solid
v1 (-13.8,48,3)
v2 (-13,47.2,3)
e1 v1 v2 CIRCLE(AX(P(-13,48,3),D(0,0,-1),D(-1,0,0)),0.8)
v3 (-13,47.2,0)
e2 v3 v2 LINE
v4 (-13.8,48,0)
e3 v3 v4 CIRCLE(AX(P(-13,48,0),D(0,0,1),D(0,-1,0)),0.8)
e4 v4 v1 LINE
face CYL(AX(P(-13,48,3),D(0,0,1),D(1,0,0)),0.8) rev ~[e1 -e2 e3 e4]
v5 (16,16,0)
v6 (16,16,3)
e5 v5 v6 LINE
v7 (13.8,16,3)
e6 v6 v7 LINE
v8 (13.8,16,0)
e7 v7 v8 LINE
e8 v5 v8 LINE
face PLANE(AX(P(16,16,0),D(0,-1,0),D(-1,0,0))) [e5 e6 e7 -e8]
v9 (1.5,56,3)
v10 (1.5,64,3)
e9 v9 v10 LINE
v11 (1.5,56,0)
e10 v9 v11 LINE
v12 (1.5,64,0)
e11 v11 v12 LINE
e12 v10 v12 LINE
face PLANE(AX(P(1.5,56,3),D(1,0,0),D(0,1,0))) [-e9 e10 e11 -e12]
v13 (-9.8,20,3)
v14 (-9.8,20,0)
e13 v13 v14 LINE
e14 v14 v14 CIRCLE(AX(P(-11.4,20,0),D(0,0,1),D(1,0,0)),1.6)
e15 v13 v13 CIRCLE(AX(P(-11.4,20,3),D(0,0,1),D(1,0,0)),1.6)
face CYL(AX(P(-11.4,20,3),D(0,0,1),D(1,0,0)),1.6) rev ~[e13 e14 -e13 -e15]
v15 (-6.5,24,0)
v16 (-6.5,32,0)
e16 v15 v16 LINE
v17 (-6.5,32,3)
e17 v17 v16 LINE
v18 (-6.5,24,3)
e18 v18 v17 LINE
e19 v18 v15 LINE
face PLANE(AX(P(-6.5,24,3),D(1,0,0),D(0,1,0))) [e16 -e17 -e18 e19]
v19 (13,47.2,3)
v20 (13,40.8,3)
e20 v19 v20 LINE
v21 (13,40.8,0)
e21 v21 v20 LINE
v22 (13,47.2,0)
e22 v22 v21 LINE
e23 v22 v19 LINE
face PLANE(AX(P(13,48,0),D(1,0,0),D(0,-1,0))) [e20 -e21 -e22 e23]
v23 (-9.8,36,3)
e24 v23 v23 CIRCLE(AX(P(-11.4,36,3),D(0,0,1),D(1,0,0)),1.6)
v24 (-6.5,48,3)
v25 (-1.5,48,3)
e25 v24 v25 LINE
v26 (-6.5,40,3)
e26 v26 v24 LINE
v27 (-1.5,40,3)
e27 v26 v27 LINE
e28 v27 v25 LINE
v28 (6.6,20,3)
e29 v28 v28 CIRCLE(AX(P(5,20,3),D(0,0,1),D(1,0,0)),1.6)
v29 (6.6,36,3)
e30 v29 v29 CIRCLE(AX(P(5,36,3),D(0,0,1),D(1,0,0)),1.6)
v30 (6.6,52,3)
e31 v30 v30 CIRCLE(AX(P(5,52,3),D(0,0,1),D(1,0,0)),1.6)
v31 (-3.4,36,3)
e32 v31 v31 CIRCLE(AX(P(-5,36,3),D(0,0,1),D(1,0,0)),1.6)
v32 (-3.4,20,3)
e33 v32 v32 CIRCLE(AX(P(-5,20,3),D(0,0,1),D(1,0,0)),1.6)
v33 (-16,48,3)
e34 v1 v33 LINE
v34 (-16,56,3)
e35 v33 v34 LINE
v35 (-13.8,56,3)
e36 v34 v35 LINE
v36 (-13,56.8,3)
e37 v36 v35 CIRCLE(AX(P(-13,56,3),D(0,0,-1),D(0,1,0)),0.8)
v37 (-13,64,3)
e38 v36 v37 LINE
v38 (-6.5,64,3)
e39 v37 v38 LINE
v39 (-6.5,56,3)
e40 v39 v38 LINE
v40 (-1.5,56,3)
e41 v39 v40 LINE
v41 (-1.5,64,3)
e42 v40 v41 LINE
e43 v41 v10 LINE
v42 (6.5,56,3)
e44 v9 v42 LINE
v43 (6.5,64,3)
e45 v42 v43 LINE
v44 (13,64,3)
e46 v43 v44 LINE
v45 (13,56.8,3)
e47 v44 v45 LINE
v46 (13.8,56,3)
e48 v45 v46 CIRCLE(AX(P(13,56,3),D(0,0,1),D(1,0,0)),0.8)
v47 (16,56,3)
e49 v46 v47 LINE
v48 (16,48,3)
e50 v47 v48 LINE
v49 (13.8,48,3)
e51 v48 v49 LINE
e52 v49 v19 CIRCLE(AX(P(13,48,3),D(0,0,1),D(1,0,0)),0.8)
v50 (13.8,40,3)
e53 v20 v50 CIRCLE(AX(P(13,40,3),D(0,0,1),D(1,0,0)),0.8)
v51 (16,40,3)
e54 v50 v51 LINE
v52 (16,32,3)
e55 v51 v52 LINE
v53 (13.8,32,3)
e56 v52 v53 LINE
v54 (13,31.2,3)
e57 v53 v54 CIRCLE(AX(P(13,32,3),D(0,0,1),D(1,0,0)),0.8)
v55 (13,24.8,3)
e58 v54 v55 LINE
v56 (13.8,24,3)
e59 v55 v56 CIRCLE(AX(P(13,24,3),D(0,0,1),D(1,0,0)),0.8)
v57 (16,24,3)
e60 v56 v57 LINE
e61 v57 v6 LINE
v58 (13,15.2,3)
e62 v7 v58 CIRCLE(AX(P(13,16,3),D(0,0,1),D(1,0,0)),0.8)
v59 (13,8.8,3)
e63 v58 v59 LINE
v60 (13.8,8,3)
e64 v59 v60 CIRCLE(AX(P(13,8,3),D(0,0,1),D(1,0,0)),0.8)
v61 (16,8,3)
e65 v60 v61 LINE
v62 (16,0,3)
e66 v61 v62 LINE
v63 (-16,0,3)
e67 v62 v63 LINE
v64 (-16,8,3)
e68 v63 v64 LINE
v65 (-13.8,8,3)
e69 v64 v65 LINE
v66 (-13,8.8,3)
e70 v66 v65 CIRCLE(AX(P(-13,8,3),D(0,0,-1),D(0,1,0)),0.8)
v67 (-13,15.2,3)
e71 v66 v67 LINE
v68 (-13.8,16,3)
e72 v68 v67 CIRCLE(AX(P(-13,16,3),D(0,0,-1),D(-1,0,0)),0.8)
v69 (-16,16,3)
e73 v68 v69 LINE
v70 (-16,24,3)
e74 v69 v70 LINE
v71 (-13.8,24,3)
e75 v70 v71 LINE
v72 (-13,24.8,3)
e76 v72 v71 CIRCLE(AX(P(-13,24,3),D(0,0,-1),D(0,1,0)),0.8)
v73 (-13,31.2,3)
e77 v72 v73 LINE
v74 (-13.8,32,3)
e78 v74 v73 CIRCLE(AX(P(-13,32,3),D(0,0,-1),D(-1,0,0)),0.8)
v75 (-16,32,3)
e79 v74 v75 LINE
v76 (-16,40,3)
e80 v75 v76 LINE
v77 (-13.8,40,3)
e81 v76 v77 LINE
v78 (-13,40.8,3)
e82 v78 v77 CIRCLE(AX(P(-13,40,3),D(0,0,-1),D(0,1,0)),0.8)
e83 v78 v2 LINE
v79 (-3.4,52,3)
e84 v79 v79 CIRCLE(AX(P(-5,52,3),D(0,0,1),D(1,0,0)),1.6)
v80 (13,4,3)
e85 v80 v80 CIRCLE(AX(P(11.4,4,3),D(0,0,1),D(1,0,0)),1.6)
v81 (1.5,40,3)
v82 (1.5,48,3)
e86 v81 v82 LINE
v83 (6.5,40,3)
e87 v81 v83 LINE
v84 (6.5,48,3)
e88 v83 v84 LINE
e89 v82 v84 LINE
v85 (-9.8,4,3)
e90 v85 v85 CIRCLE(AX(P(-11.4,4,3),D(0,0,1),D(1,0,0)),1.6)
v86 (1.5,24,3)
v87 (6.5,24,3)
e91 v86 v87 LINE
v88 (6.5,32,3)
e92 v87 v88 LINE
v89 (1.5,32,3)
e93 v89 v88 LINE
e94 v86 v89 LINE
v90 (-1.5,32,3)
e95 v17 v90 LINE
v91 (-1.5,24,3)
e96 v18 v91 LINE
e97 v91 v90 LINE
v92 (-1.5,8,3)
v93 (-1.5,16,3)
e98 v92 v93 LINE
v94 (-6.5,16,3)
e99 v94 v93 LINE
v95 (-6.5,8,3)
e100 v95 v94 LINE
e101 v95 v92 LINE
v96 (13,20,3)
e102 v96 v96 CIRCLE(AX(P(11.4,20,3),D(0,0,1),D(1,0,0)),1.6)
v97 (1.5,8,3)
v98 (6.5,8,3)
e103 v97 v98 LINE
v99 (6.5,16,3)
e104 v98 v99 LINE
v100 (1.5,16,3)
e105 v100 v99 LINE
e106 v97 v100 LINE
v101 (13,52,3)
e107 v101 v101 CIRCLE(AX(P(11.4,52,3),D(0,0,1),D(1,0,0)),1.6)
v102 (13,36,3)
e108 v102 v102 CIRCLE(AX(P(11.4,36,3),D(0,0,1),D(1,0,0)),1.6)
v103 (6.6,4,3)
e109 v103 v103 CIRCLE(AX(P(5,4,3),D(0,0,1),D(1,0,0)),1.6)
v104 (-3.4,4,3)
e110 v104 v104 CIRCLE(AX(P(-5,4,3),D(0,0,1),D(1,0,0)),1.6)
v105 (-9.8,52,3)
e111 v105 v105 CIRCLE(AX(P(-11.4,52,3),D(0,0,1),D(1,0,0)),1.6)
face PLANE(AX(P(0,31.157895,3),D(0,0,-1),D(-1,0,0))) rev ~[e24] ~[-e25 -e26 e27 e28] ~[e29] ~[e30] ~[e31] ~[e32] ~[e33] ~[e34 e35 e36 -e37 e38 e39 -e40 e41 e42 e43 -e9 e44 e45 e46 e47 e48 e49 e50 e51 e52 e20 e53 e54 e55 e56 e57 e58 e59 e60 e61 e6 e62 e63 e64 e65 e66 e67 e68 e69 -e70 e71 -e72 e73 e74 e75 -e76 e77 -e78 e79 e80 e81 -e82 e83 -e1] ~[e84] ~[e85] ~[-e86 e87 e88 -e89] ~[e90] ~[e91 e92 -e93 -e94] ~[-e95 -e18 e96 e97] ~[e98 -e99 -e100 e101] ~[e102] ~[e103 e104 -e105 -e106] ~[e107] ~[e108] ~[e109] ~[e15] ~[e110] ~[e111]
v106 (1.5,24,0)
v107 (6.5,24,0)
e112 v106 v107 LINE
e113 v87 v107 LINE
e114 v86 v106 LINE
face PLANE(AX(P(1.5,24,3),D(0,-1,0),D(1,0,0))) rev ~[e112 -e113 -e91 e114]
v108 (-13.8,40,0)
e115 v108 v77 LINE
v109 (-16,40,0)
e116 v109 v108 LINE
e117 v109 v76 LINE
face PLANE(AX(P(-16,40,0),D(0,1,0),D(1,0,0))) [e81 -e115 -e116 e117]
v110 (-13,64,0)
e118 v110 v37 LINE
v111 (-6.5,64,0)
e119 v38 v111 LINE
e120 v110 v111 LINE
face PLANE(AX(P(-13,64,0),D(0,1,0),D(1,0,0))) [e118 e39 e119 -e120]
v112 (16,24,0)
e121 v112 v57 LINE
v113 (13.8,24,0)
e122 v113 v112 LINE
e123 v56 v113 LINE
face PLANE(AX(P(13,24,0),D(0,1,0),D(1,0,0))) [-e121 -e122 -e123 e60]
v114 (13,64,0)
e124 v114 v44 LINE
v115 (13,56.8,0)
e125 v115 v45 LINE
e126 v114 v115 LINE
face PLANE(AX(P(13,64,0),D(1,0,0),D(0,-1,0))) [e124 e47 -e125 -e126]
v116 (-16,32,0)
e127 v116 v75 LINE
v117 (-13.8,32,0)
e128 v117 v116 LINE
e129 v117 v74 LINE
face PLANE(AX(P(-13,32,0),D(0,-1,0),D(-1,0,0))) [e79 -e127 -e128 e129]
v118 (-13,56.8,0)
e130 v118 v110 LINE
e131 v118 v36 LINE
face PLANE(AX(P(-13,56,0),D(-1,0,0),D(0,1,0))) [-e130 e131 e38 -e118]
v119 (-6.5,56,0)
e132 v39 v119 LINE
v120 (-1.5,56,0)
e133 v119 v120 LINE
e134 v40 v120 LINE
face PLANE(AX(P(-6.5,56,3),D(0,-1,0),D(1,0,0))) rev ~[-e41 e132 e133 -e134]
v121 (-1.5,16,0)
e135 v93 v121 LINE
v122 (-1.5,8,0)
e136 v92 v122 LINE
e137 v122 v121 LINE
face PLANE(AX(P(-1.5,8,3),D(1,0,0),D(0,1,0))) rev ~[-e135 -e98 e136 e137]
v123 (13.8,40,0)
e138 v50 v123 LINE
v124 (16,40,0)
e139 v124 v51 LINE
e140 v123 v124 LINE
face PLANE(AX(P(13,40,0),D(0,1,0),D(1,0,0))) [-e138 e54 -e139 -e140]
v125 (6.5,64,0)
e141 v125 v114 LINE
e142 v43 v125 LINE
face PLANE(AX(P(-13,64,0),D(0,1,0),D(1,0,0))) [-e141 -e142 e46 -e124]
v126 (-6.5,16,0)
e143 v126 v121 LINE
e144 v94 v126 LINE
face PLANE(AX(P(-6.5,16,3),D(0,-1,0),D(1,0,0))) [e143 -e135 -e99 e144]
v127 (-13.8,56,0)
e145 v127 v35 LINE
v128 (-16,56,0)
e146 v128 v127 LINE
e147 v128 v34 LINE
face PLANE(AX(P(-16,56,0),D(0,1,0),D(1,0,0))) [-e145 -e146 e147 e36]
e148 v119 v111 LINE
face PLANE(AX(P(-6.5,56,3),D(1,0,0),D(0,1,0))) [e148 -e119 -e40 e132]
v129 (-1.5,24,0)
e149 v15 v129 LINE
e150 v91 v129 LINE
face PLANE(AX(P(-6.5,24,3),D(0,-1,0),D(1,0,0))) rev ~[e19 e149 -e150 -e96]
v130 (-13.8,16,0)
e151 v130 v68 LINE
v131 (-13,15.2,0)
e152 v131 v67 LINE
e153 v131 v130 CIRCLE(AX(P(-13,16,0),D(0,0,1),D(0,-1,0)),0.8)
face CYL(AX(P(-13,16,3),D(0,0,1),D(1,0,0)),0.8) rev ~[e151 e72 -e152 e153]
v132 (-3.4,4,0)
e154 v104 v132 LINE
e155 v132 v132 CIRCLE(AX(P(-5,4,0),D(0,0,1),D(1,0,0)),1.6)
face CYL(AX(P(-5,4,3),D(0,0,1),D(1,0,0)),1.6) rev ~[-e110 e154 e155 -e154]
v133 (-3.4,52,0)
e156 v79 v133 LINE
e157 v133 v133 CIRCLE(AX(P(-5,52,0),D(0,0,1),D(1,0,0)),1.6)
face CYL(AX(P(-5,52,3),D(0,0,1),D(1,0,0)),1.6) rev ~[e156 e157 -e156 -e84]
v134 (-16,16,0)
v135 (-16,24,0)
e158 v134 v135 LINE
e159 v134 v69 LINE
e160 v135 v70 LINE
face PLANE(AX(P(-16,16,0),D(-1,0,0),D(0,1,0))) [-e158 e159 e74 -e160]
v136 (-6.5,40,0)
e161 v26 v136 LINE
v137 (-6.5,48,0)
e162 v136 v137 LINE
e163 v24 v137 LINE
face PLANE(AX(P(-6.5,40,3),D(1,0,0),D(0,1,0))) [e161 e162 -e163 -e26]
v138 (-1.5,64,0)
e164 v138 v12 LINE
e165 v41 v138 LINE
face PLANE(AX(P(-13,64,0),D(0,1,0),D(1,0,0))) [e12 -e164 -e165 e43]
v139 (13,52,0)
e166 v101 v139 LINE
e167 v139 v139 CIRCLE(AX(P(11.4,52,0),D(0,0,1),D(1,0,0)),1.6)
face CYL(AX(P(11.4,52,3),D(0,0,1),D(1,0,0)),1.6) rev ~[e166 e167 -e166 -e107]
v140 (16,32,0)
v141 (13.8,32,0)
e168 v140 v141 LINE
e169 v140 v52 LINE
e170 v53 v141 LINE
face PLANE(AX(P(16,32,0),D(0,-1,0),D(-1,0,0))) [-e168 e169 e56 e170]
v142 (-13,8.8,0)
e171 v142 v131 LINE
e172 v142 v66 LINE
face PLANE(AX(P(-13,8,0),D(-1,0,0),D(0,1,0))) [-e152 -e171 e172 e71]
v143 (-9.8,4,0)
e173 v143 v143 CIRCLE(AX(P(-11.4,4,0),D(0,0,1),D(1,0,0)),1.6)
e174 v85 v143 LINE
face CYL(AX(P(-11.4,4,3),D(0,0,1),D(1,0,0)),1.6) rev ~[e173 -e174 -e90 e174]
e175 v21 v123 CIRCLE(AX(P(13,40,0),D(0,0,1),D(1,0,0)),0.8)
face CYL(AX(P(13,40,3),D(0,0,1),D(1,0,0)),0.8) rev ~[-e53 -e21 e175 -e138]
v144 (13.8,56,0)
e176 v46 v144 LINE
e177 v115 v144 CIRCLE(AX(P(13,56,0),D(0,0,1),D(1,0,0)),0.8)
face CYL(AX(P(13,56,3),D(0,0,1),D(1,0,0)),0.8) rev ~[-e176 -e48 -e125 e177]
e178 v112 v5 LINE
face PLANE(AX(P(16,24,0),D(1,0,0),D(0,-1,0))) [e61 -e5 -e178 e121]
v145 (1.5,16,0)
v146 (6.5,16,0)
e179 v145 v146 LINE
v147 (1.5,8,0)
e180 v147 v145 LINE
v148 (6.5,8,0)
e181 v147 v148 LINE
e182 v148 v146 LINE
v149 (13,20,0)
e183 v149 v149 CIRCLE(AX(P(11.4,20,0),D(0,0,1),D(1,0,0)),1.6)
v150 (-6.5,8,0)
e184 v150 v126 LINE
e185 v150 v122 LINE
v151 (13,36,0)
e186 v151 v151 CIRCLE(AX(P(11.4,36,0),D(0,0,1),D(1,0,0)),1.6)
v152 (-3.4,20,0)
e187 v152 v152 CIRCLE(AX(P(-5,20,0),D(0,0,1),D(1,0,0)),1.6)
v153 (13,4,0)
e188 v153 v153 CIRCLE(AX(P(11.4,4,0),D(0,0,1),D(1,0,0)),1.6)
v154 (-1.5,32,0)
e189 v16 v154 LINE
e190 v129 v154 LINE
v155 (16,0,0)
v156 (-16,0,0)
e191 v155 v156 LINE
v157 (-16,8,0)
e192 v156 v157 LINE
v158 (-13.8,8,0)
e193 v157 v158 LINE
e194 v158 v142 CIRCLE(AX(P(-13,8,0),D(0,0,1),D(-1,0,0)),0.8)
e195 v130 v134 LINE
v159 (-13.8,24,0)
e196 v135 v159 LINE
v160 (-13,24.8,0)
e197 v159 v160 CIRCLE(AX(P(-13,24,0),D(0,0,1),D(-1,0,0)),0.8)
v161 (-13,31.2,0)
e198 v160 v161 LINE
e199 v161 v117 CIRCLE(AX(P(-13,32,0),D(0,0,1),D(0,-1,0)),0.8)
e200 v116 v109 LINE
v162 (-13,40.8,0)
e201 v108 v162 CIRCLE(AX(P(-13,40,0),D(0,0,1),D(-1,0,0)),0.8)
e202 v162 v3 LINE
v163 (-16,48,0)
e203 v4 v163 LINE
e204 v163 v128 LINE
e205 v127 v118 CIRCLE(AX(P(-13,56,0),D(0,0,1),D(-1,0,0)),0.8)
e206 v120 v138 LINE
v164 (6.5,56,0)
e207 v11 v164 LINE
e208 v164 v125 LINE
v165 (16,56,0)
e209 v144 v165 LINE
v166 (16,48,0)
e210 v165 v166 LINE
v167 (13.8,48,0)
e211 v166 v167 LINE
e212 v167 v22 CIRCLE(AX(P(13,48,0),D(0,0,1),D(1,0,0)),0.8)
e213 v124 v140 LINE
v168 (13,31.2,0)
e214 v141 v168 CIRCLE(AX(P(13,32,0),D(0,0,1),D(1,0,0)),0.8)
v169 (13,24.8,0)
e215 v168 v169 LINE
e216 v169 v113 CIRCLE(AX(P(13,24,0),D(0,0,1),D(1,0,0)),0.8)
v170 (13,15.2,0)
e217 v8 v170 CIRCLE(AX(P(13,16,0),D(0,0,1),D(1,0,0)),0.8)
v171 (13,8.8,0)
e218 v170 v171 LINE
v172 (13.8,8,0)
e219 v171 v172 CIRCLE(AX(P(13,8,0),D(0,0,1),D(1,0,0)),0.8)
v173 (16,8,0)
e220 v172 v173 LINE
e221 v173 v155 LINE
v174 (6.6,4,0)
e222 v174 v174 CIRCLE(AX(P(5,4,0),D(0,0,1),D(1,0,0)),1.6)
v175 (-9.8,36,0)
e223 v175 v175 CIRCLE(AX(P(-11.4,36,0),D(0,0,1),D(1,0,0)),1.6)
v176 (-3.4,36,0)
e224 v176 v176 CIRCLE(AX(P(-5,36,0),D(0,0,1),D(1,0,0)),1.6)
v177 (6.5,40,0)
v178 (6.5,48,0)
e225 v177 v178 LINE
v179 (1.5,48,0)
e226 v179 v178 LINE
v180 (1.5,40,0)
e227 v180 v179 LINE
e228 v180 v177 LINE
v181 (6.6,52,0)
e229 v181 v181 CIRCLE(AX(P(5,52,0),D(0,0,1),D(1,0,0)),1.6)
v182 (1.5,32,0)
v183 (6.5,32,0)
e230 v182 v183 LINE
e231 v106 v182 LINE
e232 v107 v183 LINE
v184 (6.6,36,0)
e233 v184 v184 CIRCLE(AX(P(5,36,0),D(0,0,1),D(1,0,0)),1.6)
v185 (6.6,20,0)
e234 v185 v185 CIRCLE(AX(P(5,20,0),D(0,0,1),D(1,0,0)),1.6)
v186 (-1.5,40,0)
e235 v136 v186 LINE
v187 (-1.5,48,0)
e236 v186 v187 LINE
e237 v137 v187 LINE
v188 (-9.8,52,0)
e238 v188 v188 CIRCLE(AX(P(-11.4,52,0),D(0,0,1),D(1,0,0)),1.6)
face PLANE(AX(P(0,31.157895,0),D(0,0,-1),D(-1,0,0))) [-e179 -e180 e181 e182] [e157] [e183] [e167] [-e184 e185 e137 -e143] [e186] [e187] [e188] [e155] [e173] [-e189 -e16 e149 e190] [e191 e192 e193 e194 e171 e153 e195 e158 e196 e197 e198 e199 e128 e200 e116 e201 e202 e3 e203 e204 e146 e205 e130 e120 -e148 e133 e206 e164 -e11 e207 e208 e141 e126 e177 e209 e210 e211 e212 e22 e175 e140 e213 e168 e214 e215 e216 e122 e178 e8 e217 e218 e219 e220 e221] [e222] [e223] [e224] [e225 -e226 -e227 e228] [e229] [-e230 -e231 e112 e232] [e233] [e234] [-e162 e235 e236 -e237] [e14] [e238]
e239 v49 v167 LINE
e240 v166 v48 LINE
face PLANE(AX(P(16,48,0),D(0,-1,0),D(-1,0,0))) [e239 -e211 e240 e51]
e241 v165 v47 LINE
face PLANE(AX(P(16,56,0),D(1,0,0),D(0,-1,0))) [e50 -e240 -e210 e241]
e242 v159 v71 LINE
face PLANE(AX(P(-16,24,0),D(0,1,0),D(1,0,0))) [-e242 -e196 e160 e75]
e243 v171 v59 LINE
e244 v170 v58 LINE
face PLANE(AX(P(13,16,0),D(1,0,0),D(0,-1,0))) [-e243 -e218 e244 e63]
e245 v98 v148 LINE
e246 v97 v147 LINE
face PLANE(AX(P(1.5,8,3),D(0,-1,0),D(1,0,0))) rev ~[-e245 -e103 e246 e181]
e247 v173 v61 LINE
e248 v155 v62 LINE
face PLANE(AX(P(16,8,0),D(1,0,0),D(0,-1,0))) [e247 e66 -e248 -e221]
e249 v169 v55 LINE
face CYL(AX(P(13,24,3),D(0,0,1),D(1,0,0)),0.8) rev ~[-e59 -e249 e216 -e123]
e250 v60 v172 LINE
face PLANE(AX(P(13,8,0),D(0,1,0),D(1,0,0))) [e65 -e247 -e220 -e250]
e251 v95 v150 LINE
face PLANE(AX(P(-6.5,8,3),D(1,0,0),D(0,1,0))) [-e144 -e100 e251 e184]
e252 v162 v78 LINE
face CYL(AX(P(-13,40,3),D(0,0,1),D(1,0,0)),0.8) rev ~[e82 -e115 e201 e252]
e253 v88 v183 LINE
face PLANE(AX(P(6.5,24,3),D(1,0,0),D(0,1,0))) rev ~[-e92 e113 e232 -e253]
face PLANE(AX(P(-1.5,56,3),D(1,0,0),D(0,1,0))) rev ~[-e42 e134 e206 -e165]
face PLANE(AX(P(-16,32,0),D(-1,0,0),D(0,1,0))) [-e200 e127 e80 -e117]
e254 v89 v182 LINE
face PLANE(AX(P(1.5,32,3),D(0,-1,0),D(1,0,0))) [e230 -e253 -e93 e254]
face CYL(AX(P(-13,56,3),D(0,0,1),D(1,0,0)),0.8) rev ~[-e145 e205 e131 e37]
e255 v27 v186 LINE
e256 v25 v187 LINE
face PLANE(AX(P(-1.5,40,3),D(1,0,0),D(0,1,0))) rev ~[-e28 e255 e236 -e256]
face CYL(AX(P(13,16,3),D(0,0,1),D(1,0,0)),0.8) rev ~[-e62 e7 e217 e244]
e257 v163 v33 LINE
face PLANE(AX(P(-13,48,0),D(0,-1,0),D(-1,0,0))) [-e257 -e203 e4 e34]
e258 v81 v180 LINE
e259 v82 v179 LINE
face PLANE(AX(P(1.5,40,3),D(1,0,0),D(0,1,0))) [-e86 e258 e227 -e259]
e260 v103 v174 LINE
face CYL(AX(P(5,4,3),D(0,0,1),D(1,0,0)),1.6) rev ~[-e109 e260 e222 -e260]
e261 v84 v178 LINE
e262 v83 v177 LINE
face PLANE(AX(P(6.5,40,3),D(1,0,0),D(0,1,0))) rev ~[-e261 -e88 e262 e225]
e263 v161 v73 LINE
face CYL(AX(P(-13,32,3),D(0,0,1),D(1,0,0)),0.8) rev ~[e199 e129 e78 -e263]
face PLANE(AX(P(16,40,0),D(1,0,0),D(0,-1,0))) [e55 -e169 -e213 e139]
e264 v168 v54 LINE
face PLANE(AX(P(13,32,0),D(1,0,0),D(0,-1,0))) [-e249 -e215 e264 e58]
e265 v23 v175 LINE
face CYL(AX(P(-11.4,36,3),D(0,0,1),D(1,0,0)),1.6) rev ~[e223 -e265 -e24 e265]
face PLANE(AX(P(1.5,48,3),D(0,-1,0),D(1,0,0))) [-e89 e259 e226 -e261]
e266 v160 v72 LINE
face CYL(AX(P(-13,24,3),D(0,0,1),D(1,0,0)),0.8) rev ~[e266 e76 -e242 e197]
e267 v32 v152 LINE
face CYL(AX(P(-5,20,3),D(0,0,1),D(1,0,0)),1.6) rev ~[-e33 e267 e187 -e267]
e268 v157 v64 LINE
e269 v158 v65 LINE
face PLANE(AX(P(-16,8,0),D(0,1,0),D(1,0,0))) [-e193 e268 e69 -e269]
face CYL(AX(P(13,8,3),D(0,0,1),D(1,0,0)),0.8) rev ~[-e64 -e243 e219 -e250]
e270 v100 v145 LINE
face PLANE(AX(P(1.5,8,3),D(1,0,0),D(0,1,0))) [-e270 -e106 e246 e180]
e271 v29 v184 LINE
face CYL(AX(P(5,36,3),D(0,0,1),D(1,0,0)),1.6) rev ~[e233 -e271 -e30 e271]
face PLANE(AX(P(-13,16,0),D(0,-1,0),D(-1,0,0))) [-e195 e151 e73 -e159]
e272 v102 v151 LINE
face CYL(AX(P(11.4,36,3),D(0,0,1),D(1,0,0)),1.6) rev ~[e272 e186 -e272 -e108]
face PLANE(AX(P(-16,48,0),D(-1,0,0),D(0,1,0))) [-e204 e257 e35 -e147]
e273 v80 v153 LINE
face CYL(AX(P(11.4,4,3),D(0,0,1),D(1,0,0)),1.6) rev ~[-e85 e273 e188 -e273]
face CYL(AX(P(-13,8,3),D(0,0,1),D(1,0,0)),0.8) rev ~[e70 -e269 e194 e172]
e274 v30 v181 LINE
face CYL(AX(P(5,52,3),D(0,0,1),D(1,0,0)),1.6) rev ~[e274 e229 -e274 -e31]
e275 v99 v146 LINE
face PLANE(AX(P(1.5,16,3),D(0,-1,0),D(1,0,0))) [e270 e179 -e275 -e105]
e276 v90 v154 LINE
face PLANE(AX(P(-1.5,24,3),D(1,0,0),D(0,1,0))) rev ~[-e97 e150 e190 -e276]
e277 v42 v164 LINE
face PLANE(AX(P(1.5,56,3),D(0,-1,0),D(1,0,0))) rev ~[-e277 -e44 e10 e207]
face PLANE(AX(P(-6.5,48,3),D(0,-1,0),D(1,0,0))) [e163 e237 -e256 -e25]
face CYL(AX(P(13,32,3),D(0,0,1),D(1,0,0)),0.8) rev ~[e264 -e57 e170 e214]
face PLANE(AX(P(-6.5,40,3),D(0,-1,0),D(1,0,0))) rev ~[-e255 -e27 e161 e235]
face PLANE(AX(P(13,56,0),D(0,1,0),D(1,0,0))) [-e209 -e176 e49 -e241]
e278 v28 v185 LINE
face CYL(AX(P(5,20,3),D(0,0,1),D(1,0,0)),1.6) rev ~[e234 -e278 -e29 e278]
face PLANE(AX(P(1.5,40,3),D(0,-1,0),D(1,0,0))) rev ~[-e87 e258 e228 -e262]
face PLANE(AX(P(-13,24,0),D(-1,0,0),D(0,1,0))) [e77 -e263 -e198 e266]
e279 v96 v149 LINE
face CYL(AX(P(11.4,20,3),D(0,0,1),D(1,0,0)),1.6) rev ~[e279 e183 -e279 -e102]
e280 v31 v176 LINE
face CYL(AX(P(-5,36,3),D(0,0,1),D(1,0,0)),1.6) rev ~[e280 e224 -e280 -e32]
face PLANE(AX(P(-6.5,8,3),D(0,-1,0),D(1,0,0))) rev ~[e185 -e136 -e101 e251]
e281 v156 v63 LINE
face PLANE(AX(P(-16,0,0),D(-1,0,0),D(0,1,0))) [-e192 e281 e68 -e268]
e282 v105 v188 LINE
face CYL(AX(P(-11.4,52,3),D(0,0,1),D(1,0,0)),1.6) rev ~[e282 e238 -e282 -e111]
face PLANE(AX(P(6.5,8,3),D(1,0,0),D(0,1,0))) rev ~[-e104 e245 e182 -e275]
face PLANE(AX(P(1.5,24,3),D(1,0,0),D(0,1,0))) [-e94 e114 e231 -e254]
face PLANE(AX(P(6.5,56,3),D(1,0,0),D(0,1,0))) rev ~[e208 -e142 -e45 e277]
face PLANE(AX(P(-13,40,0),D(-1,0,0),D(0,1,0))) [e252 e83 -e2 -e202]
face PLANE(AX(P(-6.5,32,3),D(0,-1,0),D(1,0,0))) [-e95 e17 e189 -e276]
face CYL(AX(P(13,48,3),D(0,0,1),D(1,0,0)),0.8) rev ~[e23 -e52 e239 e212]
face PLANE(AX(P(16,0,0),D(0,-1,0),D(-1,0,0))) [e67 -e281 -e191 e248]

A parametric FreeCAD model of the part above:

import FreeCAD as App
import Part
import Sketcher
from FreeCAD import Vector
Q = App.Units.Quantity


def add_polygon(sketch, points):
    """Adds a closed chain of lines whose ends are joined by coincident constraints."""
    first, n = sketch.GeometryCount, len(points)
    for a, b in zip(points, points[1:] + points[:1]):
        sketch.addGeometry(Part.LineSegment(App.Vector(*a, 0), App.Vector(*b, 0)), False)
    for i in range(n):
        sketch.addConstraint(Sketcher.Constraint("Coincident", first + i, 2, first + (i + 1) % n, 1))

doc = App.newDocument("Part")
body = doc.addObject("PartDesign::Body", "Body")

sketch1 = body.newObject("Sketcher::SketchObject", "Sketch")
sketch1.AttachmentSupport = (doc.getObject("XY_Plane"), [""])
sketch1.MapMode = "FlatFace"
add_polygon(sketch1, [(-16, 0), (16, 0), (16, 8), (13, 8), (13, 16), (16, 16), (16, 24), (13, 24), (13, 32), (16, 32), (16, 40), (13, 40), (13, 48), (16, 48), (16, 56), (13, 56), (13, 64), (-13, 64), (-13, 56), (-16, 56), (-16, 48), (-13, 48), (-13, 40), (-16, 40), (-16, 32), (-13, 32), (-13, 24), (-16, 24), (-16, 16), (-13, 16), (-13, 8), (-16, 8)])
sketch1.addConstraint([
    Sketcher.Constraint("Horizontal", 0),
    Sketcher.Constraint("Vertical", 1),
    Sketcher.Constraint("Horizontal", 2),
    Sketcher.Constraint("Vertical", 3),
    Sketcher.Constraint("Horizontal", 4),
    Sketcher.Constraint("Vertical", 5),
    Sketcher.Constraint("Horizontal", 6),
    Sketcher.Constraint("Vertical", 7),
    Sketcher.Constraint("Horizontal", 8),
    Sketcher.Constraint("Vertical", 9),
    Sketcher.Constraint("Horizontal", 10),
    Sketcher.Constraint("Vertical", 11),
    Sketcher.Constraint("Horizontal", 12),
    Sketcher.Constraint("Vertical", 13),
    Sketcher.Constraint("Horizontal", 14),
    Sketcher.Constraint("Vertical", 15),
    Sketcher.Constraint("Horizontal", 16),
    Sketcher.Constraint("Vertical", 17),
    Sketcher.Constraint("Horizontal", 18),
    Sketcher.Constraint("Vertical", 19),
    Sketcher.Constraint("Horizontal", 20),
    Sketcher.Constraint("Vertical", 21),
    Sketcher.Constraint("Horizontal", 22),
    Sketcher.Constraint("Vertical", 23),
    Sketcher.Constraint("Horizontal", 24),
    Sketcher.Constraint("Vertical", 25),
    Sketcher.Constraint("Horizontal", 26),
    Sketcher.Constraint("Vertical", 27),
    Sketcher.Constraint("Horizontal", 28),
    Sketcher.Constraint("Vertical", 29),
    Sketcher.Constraint("Horizontal", 30),
    Sketcher.Constraint("Vertical", 31),
    Sketcher.Constraint("Symmetric", 0, 2, 31, 2, -1, 1),
    Sketcher.Constraint("Symmetric", 14, 2, 17, 2, -2),
    Sketcher.Constraint("Symmetric", 12, 2, 19, 2, -2),
    Sketcher.Constraint("Symmetric", 10, 2, 21, 2, -2),
    Sketcher.Constraint("Symmetric", 8, 2, 23, 2, -2),
    Sketcher.Constraint("Symmetric", 6, 2, 25, 2, -2),
    Sketcher.Constraint("Symmetric", 4, 2, 27, 2, -2),
    Sketcher.Constraint("Symmetric", 2, 2, 29, 2, -2),
    Sketcher.Constraint("Vertical", 1, 2, 4, 2),
    Sketcher.Constraint("Vertical", 3, 2, 6, 2),
    Sketcher.Constraint("Vertical", 5, 2, 8, 2),
    Sketcher.Constraint("Vertical", 7, 2, 10, 2),
    Sketcher.Constraint("Vertical", 9, 2, 12, 2),
    Sketcher.Constraint("Vertical", 11, 2, 14, 2),
    Sketcher.Constraint("Equal", 1, 3),
    Sketcher.Constraint("Equal", 3, 5),
    Sketcher.Constraint("Equal", 5, 7),
    Sketcher.Constraint("Equal", 7, 9),
    Sketcher.Constraint("Equal", 9, 11),
    Sketcher.Constraint("Equal", 11, 13),
    Sketcher.Constraint("Equal", 13, 15),
    Sketcher.Constraint("DistanceX", 0, 1, 0, 2, Q("32 mm")),
    Sketcher.Constraint("DistanceX", 2, 2, 2, 1, Q("3 mm")),
    Sketcher.Constraint("DistanceY", 1, 1, 1, 2, Q("8 mm")),
])
pad1 = body.newObject("PartDesign::Pad", "Pad")
pad1.Profile = sketch1
pad1.Length = 3

sketch2 = body.newObject("Sketcher::SketchObject", "Sketch001")
sketch2.AttachmentSupport = (doc.getObject("XY_Plane"), [""])
sketch2.MapMode = "FlatFace"
sketch2.AttachmentOffset = App.Placement(Vector(0, 0, 3), App.Rotation())
add_polygon(sketch2, [(-6.5, 32), (-6.5, 24), (-1.5, 24), (-1.5, 32)])
add_polygon(sketch2, [(-6.5, 16), (-6.5, 8), (-1.5, 8), (-1.5, 16)])
add_polygon(sketch2, [(1.5, 32), (1.5, 24), (6.5, 24), (6.5, 32)])
add_polygon(sketch2, [(-6.5, 48), (-6.5, 40), (-1.5, 40), (-1.5, 48)])
add_polygon(sketch2, [(1.5, 48), (1.5, 40), (6.5, 40), (6.5, 48)])
add_polygon(sketch2, [(1.5, 16), (1.5, 8), (6.5, 8), (6.5, 16)])
add_polygon(sketch2, [(1.5, 64), (1.5, 56), (6.5, 56), (6.5, 64)])
add_polygon(sketch2, [(-6.5, 64), (-6.5, 56), (-1.5, 56), (-1.5, 64)])
sketch2.addConstraint([
    Sketcher.Constraint("Vertical", 0),
    Sketcher.Constraint("Horizontal", 1),
    Sketcher.Constraint("Vertical", 2),
    Sketcher.Constraint("Horizontal", 3),
    Sketcher.Constraint("Vertical", 4),
    Sketcher.Constraint("Horizontal", 5),
    Sketcher.Constraint("Vertical", 6),
    Sketcher.Constraint("Horizontal", 7),
    Sketcher.Constraint("Vertical", 8),
    Sketcher.Constraint("Horizontal", 9),
    Sketcher.Constraint("Vertical", 10),
    Sketcher.Constraint("Horizontal", 11),
    Sketcher.Constraint("Vertical", 12),
    Sketcher.Constraint("Horizontal", 13),
    Sketcher.Constraint("Vertical", 14),
    Sketcher.Constraint("Horizontal", 15),
    Sketcher.Constraint("Vertical", 16),
    Sketcher.Constraint("Horizontal", 17),
    Sketcher.Constraint("Vertical", 18),
    Sketcher.Constraint("Horizontal", 19),
    Sketcher.Constraint("Vertical", 20),
    Sketcher.Constraint("Horizontal", 21),
    Sketcher.Constraint("Vertical", 22),
    Sketcher.Constraint("Horizontal", 23),
    Sketcher.Constraint("Vertical", 24),
    Sketcher.Constraint("Horizontal", 25),
    Sketcher.Constraint("Vertical", 26),
    Sketcher.Constraint("Horizontal", 27),
    Sketcher.Constraint("Vertical", 28),
    Sketcher.Constraint("Horizontal", 29),
    Sketcher.Constraint("Vertical", 30),
    Sketcher.Constraint("Horizontal", 31),
    Sketcher.Constraint("Symmetric", 1, 2, 8, 2, -2),
    Sketcher.Constraint("Symmetric", 3, 2, 10, 2, -2),
    Sketcher.Constraint("Symmetric", 13, 2, 16, 2, -2),
    Sketcher.Constraint("Symmetric", 15, 2, 18, 2, -2),
    Sketcher.Constraint("Symmetric", 5, 2, 20, 2, -2),
    Sketcher.Constraint("Symmetric", 7, 2, 22, 2, -2),
    Sketcher.Constraint("Symmetric", 25, 2, 28, 2, -2),
    Sketcher.Constraint("Symmetric", 27, 2, 30, 2, -2),
    Sketcher.Constraint("Vertical", 3, 2, 4, 2),
    Sketcher.Constraint("Vertical", 2, 2, 5, 2),
    Sketcher.Constraint("Vertical", 7, 2, 12, 2),
    Sketcher.Constraint("Vertical", 6, 2, 13, 2),
    Sketcher.Constraint("Vertical", 23, 2, 24, 2),
    Sketcher.Constraint("Vertical", 22, 2, 25, 2),
    Sketcher.Constraint("Equal", 2, 4),
    Sketcher.Constraint("Equal", 10, 12),
    Sketcher.Constraint("Equal", 22, 24),
    Sketcher.Constraint("DistanceX", 1, 1, 1, 2, Q("5 mm")),
    Sketcher.Constraint("DistanceY", 0, 2, 0, 1, Q("8 mm")),
    Sketcher.Constraint("DistanceY", -1, 1, 0, 2, Q("24 mm")),
    Sketcher.Constraint("DistanceY", -1, 1, 4, 2, Q("8 mm")),
    Sketcher.Constraint("DistanceY", -1, 1, 12, 2, Q("40 mm")),
    Sketcher.Constraint("DistanceY", -1, 1, 24, 2, Q("56 mm")),
    Sketcher.Constraint("DistanceX", 1, 2, 8, 2, Q("3 mm")),
])
pocket1 = body.newObject("PartDesign::Pocket", "Pocket")
pocket1.Profile = sketch2
pocket1.Length = 3

sketch3 = body.newObject("Sketcher::SketchObject", "Sketch002")
sketch3.AttachmentSupport = (doc.getObject("XY_Plane"), [""])
sketch3.MapMode = "FlatFace"
sketch3.AttachmentOffset = App.Placement(Vector(0, 0, 3), App.Rotation())
sketch3.addGeometry([
    Part.Circle(Vector(-11.4, 4, 0), Vector(0, 0, 1), 1.6),
    Part.Circle(Vector(11.4, 4, 0), Vector(0, 0, 1), 1.6),
    Part.Circle(Vector(-11.4, 20, 0), Vector(0, 0, 1), 1.6),
    Part.Circle(Vector(11.4, 20, 0), Vector(0, 0, 1), 1.6),
    Part.Circle(Vector(-11.4, 36, 0), Vector(0, 0, 1), 1.6),
    Part.Circle(Vector(11.4, 36, 0), Vector(0, 0, 1), 1.6),
    Part.Circle(Vector(-11.4, 52, 0), Vector(0, 0, 1), 1.6),
    Part.Circle(Vector(11.4, 52, 0), Vector(0, 0, 1), 1.6),
], False)
sketch3.addConstraint([
    Sketcher.Constraint("Equal", 0, 1),
    Sketcher.Constraint("Equal", 1, 2),
    Sketcher.Constraint("Equal", 2, 3),
    Sketcher.Constraint("Equal", 3, 4),
    Sketcher.Constraint("Equal", 4, 5),
    Sketcher.Constraint("Equal", 5, 6),
    Sketcher.Constraint("Equal", 6, 7),
    Sketcher.Constraint("Symmetric", 0, 3, 1, 3, -2),
    Sketcher.Constraint("Symmetric", 2, 3, 3, 3, -2),
    Sketcher.Constraint("Symmetric", 4, 3, 5, 3, -2),
    Sketcher.Constraint("Symmetric", 6, 3, 7, 3, -2),
    Sketcher.Constraint("Vertical", 0, 3, 2, 3),
    Sketcher.Constraint("Vertical", 2, 3, 4, 3),
    Sketcher.Constraint("Vertical", 4, 3, 6, 3),
    Sketcher.Constraint("Diameter", 0, Q("3.2 mm")),
    Sketcher.Constraint("DistanceY", -1, 1, 0, 3, Q("4 mm")),
    Sketcher.Constraint("DistanceY", -1, 1, 2, 3, Q("20 mm")),
    Sketcher.Constraint("DistanceY", -1, 1, 4, 3, Q("36 mm")),
    Sketcher.Constraint("DistanceY", -1, 1, 6, 3, Q("52 mm")),
    Sketcher.Constraint("DistanceX", 0, 3, -1, 1, Q("11.4 mm")),
])
pocket2 = body.newObject("PartDesign::Pocket", "Pocket001")
pocket2.Profile = sketch3
pocket2.Length = 3

sketch4 = body.newObject("Sketcher::SketchObject", "Sketch003")
sketch4.AttachmentSupport = (doc.getObject("XY_Plane"), [""])
sketch4.MapMode = "FlatFace"
sketch4.AttachmentOffset = App.Placement(Vector(0, 0, 3), App.Rotation())
sketch4.addGeometry(Part.Circle(Vector(-5, 4, 0), Vector(0, 0, 1), 1.6), False)
sketch4.addConstraint([
    Sketcher.Constraint("Diameter", 0, Q("3.2 mm")),
    Sketcher.Constraint("DistanceX", 0, 3, -1, 1, Q("5 mm")),
    Sketcher.Constraint("DistanceY", -1, 1, 0, 3, Q("4 mm")),
])
pocket3 = body.newObject("PartDesign::Pocket", "Pocket002")
pocket3.Profile = sketch4
pocket3.Type = "UpToFirst"

sketch5 = body.newObject("Sketcher::SketchObject", "Sketch004")
sketch5.AttachmentSupport = (doc.getObject("XY_Plane"), [""])
sketch5.MapMode = "FlatFace"
sketch5.AttachmentOffset = App.Placement(Vector(0, 0, 3), App.Rotation())
sketch5.addGeometry(Part.Circle(Vector(5, 4, 0), Vector(0, 0, 1), 1.6), False)
sketch5.addConstraint([
    Sketcher.Constraint("Diameter", 0, Q("3.2 mm")),
    Sketcher.Constraint("DistanceX", -1, 1, 0, 3, Q("5 mm")),
    Sketcher.Constraint("DistanceY", -1, 1, 0, 3, Q("4 mm")),
])
pocket4 = body.newObject("PartDesign::Pocket", "Pocket003")
pocket4.Profile = sketch5
pocket4.Type = "UpToFirst"

sketch6 = body.newObject("Sketcher::SketchObject", "Sketch005")
sketch6.AttachmentSupport = (doc.getObject("XY_Plane"), [""])
sketch6.MapMode = "FlatFace"
sketch6.AttachmentOffset = App.Placement(Vector(0, 0, 3), App.Rotation())
sketch6.addGeometry(Part.Circle(Vector(-5, 20, 0), Vector(0, 0, 1), 1.6), False)
sketch6.addConstraint([
    Sketcher.Constraint("Diameter", 0, Q("3.2 mm")),
    Sketcher.Constraint("DistanceX", 0, 3, -1, 1, Q("5 mm")),
    Sketcher.Constraint("DistanceY", -1, 1, 0, 3, Q("20 mm")),
])
pocket5 = body.newObject("PartDesign::Pocket", "Pocket004")
pocket5.Profile = sketch6
pocket5.Type = "UpToFirst"

sketch7 = body.newObject("Sketcher::SketchObject", "Sketch006")
sketch7.AttachmentSupport = (doc.getObject("XY_Plane"), [""])
sketch7.MapMode = "FlatFace"
sketch7.AttachmentOffset = App.Placement(Vector(0, 0, 3), App.Rotation())
sketch7.addGeometry(Part.Circle(Vector(5, 20, 0), Vector(0, 0, 1), 1.6), False)
sketch7.addConstraint([
    Sketcher.Constraint("Diameter", 0, Q("3.2 mm")),
    Sketcher.Constraint("DistanceX", -1, 1, 0, 3, Q("5 mm")),
    Sketcher.Constraint("DistanceY", -1, 1, 0, 3, Q("20 mm")),
])
pocket6 = body.newObject("PartDesign::Pocket", "Pocket005")
pocket6.Profile = sketch7
pocket6.Type = "UpToFirst"

sketch8 = body.newObject("Sketcher::SketchObject", "Sketch007")
sketch8.AttachmentSupport = (doc.getObject("XY_Plane"), [""])
sketch8.MapMode = "FlatFace"
sketch8.AttachmentOffset = App.Placement(Vector(0, 0, 3), App.Rotation())
sketch8.addGeometry(Part.Circle(Vector(-5, 36, 0), Vector(0, 0, 1), 1.6), False)
sketch8.addConstraint([
    Sketcher.Constraint("Diameter", 0, Q("3.2 mm")),
    Sketcher.Constraint("DistanceX", 0, 3, -1, 1, Q("5 mm")),
    Sketcher.Constraint("DistanceY", -1, 1, 0, 3, Q("36 mm")),
])
pocket7 = body.newObject("PartDesign::Pocket", "Pocket006")
pocket7.Profile = sketch8
pocket7.Type = "UpToFirst"

sketch9 = body.newObject("Sketcher::SketchObject", "Sketch008")
sketch9.AttachmentSupport = (doc.getObject("XY_Plane"), [""])
sketch9.MapMode = "FlatFace"
sketch9.AttachmentOffset = App.Placement(Vector(0, 0, 3), App.Rotation())
sketch9.addGeometry(Part.Circle(Vector(5, 36, 0), Vector(0, 0, 1), 1.6), False)
sketch9.addConstraint([
    Sketcher.Constraint("Diameter", 0, Q("3.2 mm")),
    Sketcher.Constraint("DistanceX", -1, 1, 0, 3, Q("5 mm")),
    Sketcher.Constraint("DistanceY", -1, 1, 0, 3, Q("36 mm")),
])
pocket8 = body.newObject("PartDesign::Pocket", "Pocket007")
pocket8.Profile = sketch9
pocket8.Type = "UpToFirst"

sketch10 = body.newObject("Sketcher::SketchObject", "Sketch009")
sketch10.AttachmentSupport = (doc.getObject("XY_Plane"), [""])
sketch10.MapMode = "FlatFace"
sketch10.AttachmentOffset = App.Placement(Vector(0, 0, 3), App.Rotation())
sketch10.addGeometry(Part.Circle(Vector(-5, 52, 0), Vector(0, 0, 1), 1.6), False)
sketch10.addConstraint([
    Sketcher.Constraint("Diameter", 0, Q("3.2 mm")),
    Sketcher.Constraint("DistanceX", 0, 3, -1, 1, Q("5 mm")),
    Sketcher.Constraint("DistanceY", -1, 1, 0, 3, Q("52 mm")),
])
pocket9 = body.newObject("PartDesign::Pocket", "Pocket008")
pocket9.Profile = sketch10
pocket9.Type = "UpToFirst"

sketch11 = body.newObject("Sketcher::SketchObject", "Sketch010")
sketch11.AttachmentSupport = (doc.getObject("XY_Plane"), [""])
sketch11.MapMode = "FlatFace"
sketch11.AttachmentOffset = App.Placement(Vector(0, 0, 3), App.Rotation())
sketch11.addGeometry(Part.Circle(Vector(5, 52, 0), Vector(0, 0, 1), 1.6), False)
sketch11.addConstraint([
    Sketcher.Constraint("Diameter", 0, Q("3.2 mm")),
    Sketcher.Constraint("DistanceX", -1, 1, 0, 3, Q("5 mm")),
    Sketcher.Constraint("DistanceY", -1, 1, 0, 3, Q("52 mm")),
])
pocket10 = body.newObject("PartDesign::Pocket", "Pocket009")
pocket10.Profile = sketch11
pocket10.Type = "UpToFirst"

sketch12 = body.newObject("Sketcher::SketchObject", "Sketch011")
sketch12.AttachmentSupport = (doc.getObject("XY_Plane"), [""])
sketch12.MapMode = "FlatFace"
sketch12.AttachmentOffset = App.Placement(Vector(0, 0, 3), App.Rotation())
sketch12.addGeometry(Part.Circle(Vector(-13, 8, 0), Vector(0, 0, 1), 0.8), False)
sketch12.addConstraint([
    Sketcher.Constraint("Diameter", 0, Q("1.6 mm")),
    Sketcher.Constraint("DistanceX", 0, 3, -1, 1, Q("13 mm")),
    Sketcher.Constraint("DistanceY", -1, 1, 0, 3, Q("8 mm")),
])
pocket11 = body.newObject("PartDesign::Pocket", "Pocket010")
pocket11.Profile = sketch12
pocket11.Type = "UpToFirst"

sketch13 = body.newObject("Sketcher::SketchObject", "Sketch012")
sketch13.AttachmentSupport = (doc.getObject("XY_Plane"), [""])
sketch13.MapMode = "FlatFace"
sketch13.AttachmentOffset = App.Placement(Vector(0, 0, 3), App.Rotation())
sketch13.addGeometry(Part.Circle(Vector(-13, 16, 0), Vector(0, 0, 1), 0.8), False)
sketch13.addConstraint([
    Sketcher.Constraint("Diameter", 0, Q("1.6 mm")),
    Sketcher.Constraint("DistanceX", 0, 3, -1, 1, Q("13 mm")),
    Sketcher.Constraint("DistanceY", -1, 1, 0, 3, Q("16 mm")),
])
pocket12 = body.newObject("PartDesign::Pocket", "Pocket011")
pocket12.Profile = sketch13
pocket12.Type = "UpToFirst"

sketch14 = body.newObject("Sketcher::SketchObject", "Sketch013")
sketch14.AttachmentSupport = (doc.getObject("XY_Plane"), [""])
sketch14.MapMode = "FlatFace"
sketch14.AttachmentOffset = App.Placement(Vector(0, 0, 3), App.Rotation())
sketch14.addGeometry(Part.Circle(Vector(-13, 24, 0), Vector(0, 0, 1), 0.8), False)
sketch14.addConstraint([
    Sketcher.Constraint("Diameter", 0, Q("1.6 mm")),
    Sketcher.Constraint("DistanceX", 0, 3, -1, 1, Q("13 mm")),
    Sketcher.Constraint("DistanceY", -1, 1, 0, 3, Q("24 mm")),
])
pocket13 = body.newObject("PartDesign::Pocket", "Pocket012")
pocket13.Profile = sketch14
pocket13.Type = "UpToFirst"

sketch15 = body.newObject("Sketcher::SketchObject", "Sketch014")
sketch15.AttachmentSupport = (doc.getObject("XY_Plane"), [""])
sketch15.MapMode = "FlatFace"
sketch15.AttachmentOffset = App.Placement(Vector(0, 0, 3), App.Rotation())
sketch15.addGeometry(Part.Circle(Vector(-13, 32, 0), Vector(0, 0, 1), 0.8), False)
sketch15.addConstraint([
    Sketcher.Constraint("Diameter", 0, Q("1.6 mm")),
    Sketcher.Constraint("DistanceX", 0, 3, -1, 1, Q("13 mm")),
    Sketcher.Constraint("DistanceY", -1, 1, 0, 3, Q("32 mm")),
])
pocket14 = body.newObject("PartDesign::Pocket", "Pocket013")
pocket14.Profile = sketch15
pocket14.Type = "UpToFirst"

sketch16 = body.newObject("Sketcher::SketchObject", "Sketch015")
sketch16.AttachmentSupport = (doc.getObject("XY_Plane"), [""])
sketch16.MapMode = "FlatFace"
sketch16.AttachmentOffset = App.Placement(Vector(0, 0, 3), App.Rotation())
sketch16.addGeometry(Part.Circle(Vector(-13, 40, 0), Vector(0, 0, 1), 0.8), False)
sketch16.addConstraint([
    Sketcher.Constraint("Diameter", 0, Q("1.6 mm")),
    Sketcher.Constraint("DistanceX", 0, 3, -1, 1, Q("13 mm")),
    Sketcher.Constraint("DistanceY", -1, 1, 0, 3, Q("40 mm")),
])
pocket15 = body.newObject("PartDesign::Pocket", "Pocket014")
pocket15.Profile = sketch16
pocket15.Type = "UpToFirst"

sketch17 = body.newObject("Sketcher::SketchObject", "Sketch016")
sketch17.AttachmentSupport = (doc.getObject("XY_Plane"), [""])
sketch17.MapMode = "FlatFace"
sketch17.AttachmentOffset = App.Placement(Vector(0, 0, 3), App.Rotation())
sketch17.addGeometry(Part.Circle(Vector(-13, 48, 0), Vector(0, 0, 1), 0.8), False)
sketch17.addConstraint([
    Sketcher.Constraint("Diameter", 0, Q("1.6 mm")),
    Sketcher.Constraint("DistanceX", 0, 3, -1, 1, Q("13 mm")),
    Sketcher.Constraint("DistanceY", -1, 1, 0, 3, Q("48 mm")),
])
pocket16 = body.newObject("PartDesign::Pocket", "Pocket015")
pocket16.Profile = sketch17
pocket16.Type = "UpToFirst"

sketch18 = body.newObject("Sketcher::SketchObject", "Sketch017")
sketch18.AttachmentSupport = (doc.getObject("XY_Plane"), [""])
sketch18.MapMode = "FlatFace"
sketch18.AttachmentOffset = App.Placement(Vector(0, 0, 3), App.Rotation())
sketch18.addGeometry(Part.Circle(Vector(-13, 56, 0), Vector(0, 0, 1), 0.8), False)
sketch18.addConstraint([
    Sketcher.Constraint("Diameter", 0, Q("1.6 mm")),
    Sketcher.Constraint("DistanceX", 0, 3, -1, 1, Q("13 mm")),
    Sketcher.Constraint("DistanceY", -1, 1, 0, 3, Q("56 mm")),
])
pocket17 = body.newObject("PartDesign::Pocket", "Pocket016")
pocket17.Profile = sketch18
pocket17.Type = "UpToFirst"

sketch19 = body.newObject("Sketcher::SketchObject", "Sketch018")
sketch19.AttachmentSupport = (doc.getObject("XY_Plane"), [""])
sketch19.MapMode = "FlatFace"
sketch19.AttachmentOffset = App.Placement(Vector(0, 0, 3), App.Rotation())
sketch19.addGeometry(Part.Circle(Vector(13, 8, 0), Vector(0, 0, 1), 0.8), False)
sketch19.addConstraint([
    Sketcher.Constraint("Diameter", 0, Q("1.6 mm")),
    Sketcher.Constraint("DistanceX", -1, 1, 0, 3, Q("13 mm")),
    Sketcher.Constraint("DistanceY", -1, 1, 0, 3, Q("8 mm")),
])
pocket18 = body.newObject("PartDesign::Pocket", "Pocket017")
pocket18.Profile = sketch19
pocket18.Type = "UpToFirst"

sketch20 = body.newObject("Sketcher::SketchObject", "Sketch019")
sketch20.AttachmentSupport = (doc.getObject("XY_Plane"), [""])
sketch20.MapMode = "FlatFace"
sketch20.AttachmentOffset = App.Placement(Vector(0, 0, 3), App.Rotation())
sketch20.addGeometry(Part.Circle(Vector(13, 16, 0), Vector(0, 0, 1), 0.8), False)
sketch20.addConstraint([
    Sketcher.Constraint("Diameter", 0, Q("1.6 mm")),
    Sketcher.Constraint("DistanceX", -1, 1, 0, 3, Q("13 mm")),
    Sketcher.Constraint("DistanceY", -1, 1, 0, 3, Q("16 mm")),
])
pocket19 = body.newObject("PartDesign::Pocket", "Pocket018")
pocket19.Profile = sketch20
pocket19.Type = "UpToFirst"

sketch21 = body.newObject("Sketcher::SketchObject", "Sketch020")
sketch21.AttachmentSupport = (doc.getObject("XY_Plane"), [""])
sketch21.MapMode = "FlatFace"
sketch21.AttachmentOffset = App.Placement(Vector(0, 0, 3), App.Rotation())
sketch21.addGeometry(Part.Circle(Vector(13, 24, 0), Vector(0, 0, 1), 0.8), False)
sketch21.addConstraint([
    Sketcher.Constraint("Diameter", 0, Q("1.6 mm")),
    Sketcher.Constraint("DistanceX", -1, 1, 0, 3, Q("13 mm")),
    Sketcher.Constraint("DistanceY", -1, 1, 0, 3, Q("24 mm")),
])
pocket20 = body.newObject("PartDesign::Pocket", "Pocket019")
pocket20.Profile = sketch21
pocket20.Type = "UpToFirst"

sketch22 = body.newObject("Sketcher::SketchObject", "Sketch021")
sketch22.AttachmentSupport = (doc.getObject("XY_Plane"), [""])
sketch22.MapMode = "FlatFace"
sketch22.AttachmentOffset = App.Placement(Vector(0, 0, 3), App.Rotation())
sketch22.addGeometry(Part.Circle(Vector(13, 32, 0), Vector(0, 0, 1), 0.8), False)
sketch22.addConstraint([
    Sketcher.Constraint("Diameter", 0, Q("1.6 mm")),
    Sketcher.Constraint("DistanceX", -1, 1, 0, 3, Q("13 mm")),
    Sketcher.Constraint("DistanceY", -1, 1, 0, 3, Q("32 mm")),
])
pocket21 = body.newObject("PartDesign::Pocket", "Pocket020")
pocket21.Profile = sketch22
pocket21.Type = "UpToFirst"

sketch23 = body.newObject("Sketcher::SketchObject", "Sketch022")
sketch23.AttachmentSupport = (doc.getObject("XY_Plane"), [""])
sketch23.MapMode = "FlatFace"
sketch23.AttachmentOffset = App.Placement(Vector(0, 0, 3), App.Rotation())
sketch23.addGeometry(Part.Circle(Vector(13, 40, 0), Vector(0, 0, 1), 0.8), False)
sketch23.addConstraint([
    Sketcher.Constraint("Diameter", 0, Q("1.6 mm")),
    Sketcher.Constraint("DistanceX", -1, 1, 0, 3, Q("13 mm")),
    Sketcher.Constraint("DistanceY", -1, 1, 0, 3, Q("40 mm")),
])
pocket22 = body.newObject("PartDesign::Pocket", "Pocket021")
pocket22.Profile = sketch23
pocket22.Type = "UpToFirst"

sketch24 = body.newObject("Sketcher::SketchObject", "Sketch023")
sketch24.AttachmentSupport = (doc.getObject("XY_Plane"), [""])
sketch24.MapMode = "FlatFace"
sketch24.AttachmentOffset = App.Placement(Vector(0, 0, 3), App.Rotation())
sketch24.addGeometry(Part.Circle(Vector(13, 48, 0), Vector(0, 0, 1), 0.8), False)
sketch24.addConstraint([
    Sketcher.Constraint("Diameter", 0, Q("1.6 mm")),
    Sketcher.Constraint("DistanceX", -1, 1, 0, 3, Q("13 mm")),
    Sketcher.Constraint("DistanceY", -1, 1, 0, 3, Q("48 mm")),
])
pocket23 = body.newObject("PartDesign::Pocket", "Pocket022")
pocket23.Profile = sketch24
pocket23.Type = "UpToFirst"

sketch25 = body.newObject("Sketcher::SketchObject", "Sketch024")
sketch25.AttachmentSupport = (doc.getObject("XY_Plane"), [""])
sketch25.MapMode = "FlatFace"
sketch25.AttachmentOffset = App.Placement(Vector(0, 0, 3), App.Rotation())
sketch25.addGeometry(Part.Circle(Vector(13, 56, 0), Vector(0, 0, 1), 0.8), False)
sketch25.addConstraint([
    Sketcher.Constraint("Diameter", 0, Q("1.6 mm")),
    Sketcher.Constraint("DistanceX", -1, 1, 0, 3, Q("13 mm")),
    Sketcher.Constraint("DistanceY", -1, 1, 0, 3, Q("56 mm")),
])
pocket24 = body.newObject("PartDesign::Pocket", "Pocket023")
pocket24.Profile = sketch25
pocket24.Type = "UpToFirst"

doc.recompute()
